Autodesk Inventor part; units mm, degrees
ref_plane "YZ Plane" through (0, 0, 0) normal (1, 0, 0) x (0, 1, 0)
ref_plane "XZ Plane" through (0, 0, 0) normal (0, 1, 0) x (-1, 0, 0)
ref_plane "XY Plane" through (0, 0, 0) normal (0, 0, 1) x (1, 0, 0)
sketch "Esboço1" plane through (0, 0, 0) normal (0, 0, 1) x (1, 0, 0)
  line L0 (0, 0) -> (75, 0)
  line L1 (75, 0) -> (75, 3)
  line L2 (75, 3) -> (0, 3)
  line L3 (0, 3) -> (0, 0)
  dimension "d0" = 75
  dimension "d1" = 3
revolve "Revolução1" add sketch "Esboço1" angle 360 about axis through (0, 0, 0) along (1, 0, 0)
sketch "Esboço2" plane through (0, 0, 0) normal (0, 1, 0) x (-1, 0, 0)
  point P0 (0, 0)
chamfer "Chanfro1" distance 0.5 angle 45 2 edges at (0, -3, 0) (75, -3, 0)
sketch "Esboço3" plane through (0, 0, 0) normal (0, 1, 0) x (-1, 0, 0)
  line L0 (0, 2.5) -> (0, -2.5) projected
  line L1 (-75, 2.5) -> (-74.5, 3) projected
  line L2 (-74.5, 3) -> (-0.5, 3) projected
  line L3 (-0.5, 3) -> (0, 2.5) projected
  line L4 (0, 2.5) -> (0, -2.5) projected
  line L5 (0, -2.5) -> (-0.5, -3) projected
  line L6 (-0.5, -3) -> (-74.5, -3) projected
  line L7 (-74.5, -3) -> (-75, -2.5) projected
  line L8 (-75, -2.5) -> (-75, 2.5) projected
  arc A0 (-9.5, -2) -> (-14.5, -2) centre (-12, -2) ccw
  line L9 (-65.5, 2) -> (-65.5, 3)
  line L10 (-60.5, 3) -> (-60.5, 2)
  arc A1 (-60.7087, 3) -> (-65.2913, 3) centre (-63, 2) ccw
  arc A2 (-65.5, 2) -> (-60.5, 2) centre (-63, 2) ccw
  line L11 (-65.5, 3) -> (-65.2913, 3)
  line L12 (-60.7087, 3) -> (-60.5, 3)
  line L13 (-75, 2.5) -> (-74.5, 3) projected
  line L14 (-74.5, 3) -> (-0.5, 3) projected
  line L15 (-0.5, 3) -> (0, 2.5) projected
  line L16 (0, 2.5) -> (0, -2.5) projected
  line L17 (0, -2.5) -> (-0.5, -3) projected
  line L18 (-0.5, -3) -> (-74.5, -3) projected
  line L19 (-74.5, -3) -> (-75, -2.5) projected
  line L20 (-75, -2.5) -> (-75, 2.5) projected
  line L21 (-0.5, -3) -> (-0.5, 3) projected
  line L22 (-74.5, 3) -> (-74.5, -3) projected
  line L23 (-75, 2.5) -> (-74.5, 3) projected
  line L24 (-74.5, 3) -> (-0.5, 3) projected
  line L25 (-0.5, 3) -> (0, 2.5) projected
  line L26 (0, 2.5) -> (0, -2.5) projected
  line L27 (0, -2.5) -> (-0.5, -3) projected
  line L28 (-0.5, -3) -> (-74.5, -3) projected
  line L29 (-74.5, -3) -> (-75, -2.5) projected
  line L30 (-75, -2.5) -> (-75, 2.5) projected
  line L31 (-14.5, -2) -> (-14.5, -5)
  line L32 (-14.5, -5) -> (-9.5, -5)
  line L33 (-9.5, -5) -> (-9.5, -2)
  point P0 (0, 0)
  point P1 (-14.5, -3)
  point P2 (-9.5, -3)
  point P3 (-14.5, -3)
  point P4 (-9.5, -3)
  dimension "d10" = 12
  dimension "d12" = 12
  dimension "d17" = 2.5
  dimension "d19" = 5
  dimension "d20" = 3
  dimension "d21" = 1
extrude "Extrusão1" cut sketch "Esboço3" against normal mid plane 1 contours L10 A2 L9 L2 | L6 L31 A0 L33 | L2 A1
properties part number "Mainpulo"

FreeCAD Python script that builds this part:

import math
import FreeCAD as App
import Part
import Sketcher

V = App.Vector


def edges_at(feature, points):
    """Names of the edges that pass closest to the given points."""
    edges = feature.Shape.Edges
    near = lambda p: min(range(len(edges)), key=lambda i: edges[i].distToShape(Part.Vertex(*p))[0])
    return sorted({f"Edge{near(p) + 1}" for p in points})

doc = App.newDocument("Part")
body = doc.addObject("PartDesign::Body", "Body")

sketch1 = body.newObject("Sketcher::SketchObject", "Sketch")
sketch1.AttachmentSupport = (doc.getObject("XY_Plane"), [""])
sketch1.MapMode = "FlatFace"
sketch1.addGeometry(Part.LineSegment(V(0, 3, 0), V(0, 0, 0)), False)
sketch1.addGeometry(Part.LineSegment(V(0, 0, 0), V(75, 0, 0)), False)
sketch1.addGeometry(Part.LineSegment(V(75, 0, 0), V(75, 3, 0)), False)
sketch1.addGeometry(Part.LineSegment(V(75, 3, 0), V(0, 3, 0)), False)
sketch1.addConstraint(Sketcher.Constraint("Coincident", 0, 2, 1, 1))
sketch1.addConstraint(Sketcher.Constraint("Coincident", 1, 2, 2, 1))
sketch1.addConstraint(Sketcher.Constraint("Coincident", 2, 2, 3, 1))
sketch1.addConstraint(Sketcher.Constraint("Coincident", 3, 2, 0, 1))
sketch1.addConstraint(Sketcher.Constraint("Vertical", 0))
sketch1.addConstraint(Sketcher.Constraint("Horizontal", 1))
sketch1.addConstraint(Sketcher.Constraint("Vertical", 2))
sketch1.addConstraint(Sketcher.Constraint("Horizontal", 3))
sketch1.addConstraint(Sketcher.Constraint("Coincident", 0, 2, -1, 1))
sketch1.addConstraint(Sketcher.Constraint("DistanceX", 1, 1, 1, 2, 75.0))
sketch1.addConstraint(Sketcher.Constraint("DistanceY", 0, 2, 0, 1, 3.0))
revolution = body.newObject("PartDesign::Revolution", "Revolution")
revolution.Profile = sketch1
revolution.ReferenceAxis = (sketch1, ["H_Axis"])
revolution.Angle = 360
doc.recompute()

chamfer = body.newObject("PartDesign::Chamfer", "Chamfer")
chamfer.Base = (revolution, edges_at(revolution, [(0, -3, 0), (75, -3, 0)]))
chamfer.Size = 0.5

sketch2 = body.newObject("Sketcher::SketchObject", "Sketch001")
sketch2.AttachmentSupport = (doc.getObject("XZ_Plane"), [""])
sketch2.MapMode = "FlatFace"
sketch2.addGeometry(Part.LineSegment(V(60.5, 2, 0), V(60.5, 3, 0)), False)
sketch2.addGeometry(Part.LineSegment(V(60.5, 3, 0), V(60.71, 3, 0)), False)
sketch2.addGeometry(Part.ArcOfCircle(Part.Circle(V(63, 2, 0), V(0, 0, 1), 2.5), math.radians(24), math.radians(156)), False)
sketch2.addGeometry(Part.LineSegment(V(65.29, 3, 0), V(65.5, 3, 0)), False)
sketch2.addGeometry(Part.LineSegment(V(65.5, 3, 0), V(65.5, 2, 0)), False)
sketch2.addGeometry(Part.ArcOfCircle(Part.Circle(V(63, 2, 0), V(0, 0, 1), 2.5), math.radians(180), math.radians(360)), False)
sketch2.addGeometry(Part.LineSegment(V(14.5, -3, 0), V(9.5, -3, 0)), False)
sketch2.addGeometry(Part.LineSegment(V(9.5, -3, 0), V(9.5, -2, 0)), False)
sketch2.addGeometry(Part.ArcOfCircle(Part.Circle(V(12, -2, 0), V(0, 0, 1), 2.5), math.radians(0), math.radians(180)), False)
sketch2.addGeometry(Part.LineSegment(V(14.5, -2, 0), V(14.5, -3, 0)), False)
sketch2.addConstraint(Sketcher.Constraint("Coincident", 0, 2, 1, 1))
sketch2.addConstraint(Sketcher.Constraint("Coincident", 1, 2, 2, 2))
sketch2.addConstraint(Sketcher.Constraint("Coincident", 2, 1, 3, 1))
sketch2.addConstraint(Sketcher.Constraint("Coincident", 3, 2, 4, 1))
sketch2.addConstraint(Sketcher.Constraint("Tangent", 4, 2, 5, 2))
sketch2.addConstraint(Sketcher.Constraint("Tangent", 5, 1, 0, 1))
sketch2.addConstraint(Sketcher.Constraint("Coincident", 6, 2, 7, 1))
sketch2.addConstraint(Sketcher.Constraint("Tangent", 7, 2, 8, 2))
sketch2.addConstraint(Sketcher.Constraint("Tangent", 8, 1, 9, 1))
sketch2.addConstraint(Sketcher.Constraint("Coincident", 9, 2, 6, 1))
sketch2.addConstraint(Sketcher.Constraint("Vertical", 0))
sketch2.addConstraint(Sketcher.Constraint("Horizontal", 1))
sketch2.addConstraint(Sketcher.Constraint("Horizontal", 3))
sketch2.addConstraint(Sketcher.Constraint("Vertical", 4))
sketch2.addConstraint(Sketcher.Constraint("Horizontal", 6))
sketch2.addConstraint(Sketcher.Constraint("Vertical", 7))
sketch2.addConstraint(Sketcher.Constraint("Vertical", 9))
sketch2.addConstraint(Sketcher.Constraint("Coincident", 5, 3, 2, 3))
sketch2.addConstraint(Sketcher.Constraint("Equal", 2, 5))
sketch2.addConstraint(Sketcher.Constraint("Equal", 5, 8))
sketch2.addConstraint(Sketcher.Constraint("Horizontal", 1, 2, 2, 1))
sketch2.addConstraint(Sketcher.Constraint("Equal", 4, 7))
sketch2.addConstraint(Sketcher.Constraint("Radius", 2, 2.5))
sketch2.addConstraint(Sketcher.Constraint("DistanceY", 0, 1, 0, 2, 1.0))
sketch2.addConstraint(Sketcher.Constraint("DistanceX", -1, 1, 8, 3, 12.0))
sketch2.addConstraint(Sketcher.Constraint("DistanceY", -1, 1, 0, 2, 3.0))
sketch2.addConstraint(Sketcher.Constraint("DistanceY", 6, 2, -1, 1, 3.0))
sketch2.addConstraint(Sketcher.Constraint("DistanceX", -1, 1, 2, 3, 63.0))
pocket1 = body.newObject("PartDesign::Pocket", "Pocket")
pocket1.Profile = sketch2
pocket1.Length = 1
pocket1.Midplane = True

doc.recompute()
